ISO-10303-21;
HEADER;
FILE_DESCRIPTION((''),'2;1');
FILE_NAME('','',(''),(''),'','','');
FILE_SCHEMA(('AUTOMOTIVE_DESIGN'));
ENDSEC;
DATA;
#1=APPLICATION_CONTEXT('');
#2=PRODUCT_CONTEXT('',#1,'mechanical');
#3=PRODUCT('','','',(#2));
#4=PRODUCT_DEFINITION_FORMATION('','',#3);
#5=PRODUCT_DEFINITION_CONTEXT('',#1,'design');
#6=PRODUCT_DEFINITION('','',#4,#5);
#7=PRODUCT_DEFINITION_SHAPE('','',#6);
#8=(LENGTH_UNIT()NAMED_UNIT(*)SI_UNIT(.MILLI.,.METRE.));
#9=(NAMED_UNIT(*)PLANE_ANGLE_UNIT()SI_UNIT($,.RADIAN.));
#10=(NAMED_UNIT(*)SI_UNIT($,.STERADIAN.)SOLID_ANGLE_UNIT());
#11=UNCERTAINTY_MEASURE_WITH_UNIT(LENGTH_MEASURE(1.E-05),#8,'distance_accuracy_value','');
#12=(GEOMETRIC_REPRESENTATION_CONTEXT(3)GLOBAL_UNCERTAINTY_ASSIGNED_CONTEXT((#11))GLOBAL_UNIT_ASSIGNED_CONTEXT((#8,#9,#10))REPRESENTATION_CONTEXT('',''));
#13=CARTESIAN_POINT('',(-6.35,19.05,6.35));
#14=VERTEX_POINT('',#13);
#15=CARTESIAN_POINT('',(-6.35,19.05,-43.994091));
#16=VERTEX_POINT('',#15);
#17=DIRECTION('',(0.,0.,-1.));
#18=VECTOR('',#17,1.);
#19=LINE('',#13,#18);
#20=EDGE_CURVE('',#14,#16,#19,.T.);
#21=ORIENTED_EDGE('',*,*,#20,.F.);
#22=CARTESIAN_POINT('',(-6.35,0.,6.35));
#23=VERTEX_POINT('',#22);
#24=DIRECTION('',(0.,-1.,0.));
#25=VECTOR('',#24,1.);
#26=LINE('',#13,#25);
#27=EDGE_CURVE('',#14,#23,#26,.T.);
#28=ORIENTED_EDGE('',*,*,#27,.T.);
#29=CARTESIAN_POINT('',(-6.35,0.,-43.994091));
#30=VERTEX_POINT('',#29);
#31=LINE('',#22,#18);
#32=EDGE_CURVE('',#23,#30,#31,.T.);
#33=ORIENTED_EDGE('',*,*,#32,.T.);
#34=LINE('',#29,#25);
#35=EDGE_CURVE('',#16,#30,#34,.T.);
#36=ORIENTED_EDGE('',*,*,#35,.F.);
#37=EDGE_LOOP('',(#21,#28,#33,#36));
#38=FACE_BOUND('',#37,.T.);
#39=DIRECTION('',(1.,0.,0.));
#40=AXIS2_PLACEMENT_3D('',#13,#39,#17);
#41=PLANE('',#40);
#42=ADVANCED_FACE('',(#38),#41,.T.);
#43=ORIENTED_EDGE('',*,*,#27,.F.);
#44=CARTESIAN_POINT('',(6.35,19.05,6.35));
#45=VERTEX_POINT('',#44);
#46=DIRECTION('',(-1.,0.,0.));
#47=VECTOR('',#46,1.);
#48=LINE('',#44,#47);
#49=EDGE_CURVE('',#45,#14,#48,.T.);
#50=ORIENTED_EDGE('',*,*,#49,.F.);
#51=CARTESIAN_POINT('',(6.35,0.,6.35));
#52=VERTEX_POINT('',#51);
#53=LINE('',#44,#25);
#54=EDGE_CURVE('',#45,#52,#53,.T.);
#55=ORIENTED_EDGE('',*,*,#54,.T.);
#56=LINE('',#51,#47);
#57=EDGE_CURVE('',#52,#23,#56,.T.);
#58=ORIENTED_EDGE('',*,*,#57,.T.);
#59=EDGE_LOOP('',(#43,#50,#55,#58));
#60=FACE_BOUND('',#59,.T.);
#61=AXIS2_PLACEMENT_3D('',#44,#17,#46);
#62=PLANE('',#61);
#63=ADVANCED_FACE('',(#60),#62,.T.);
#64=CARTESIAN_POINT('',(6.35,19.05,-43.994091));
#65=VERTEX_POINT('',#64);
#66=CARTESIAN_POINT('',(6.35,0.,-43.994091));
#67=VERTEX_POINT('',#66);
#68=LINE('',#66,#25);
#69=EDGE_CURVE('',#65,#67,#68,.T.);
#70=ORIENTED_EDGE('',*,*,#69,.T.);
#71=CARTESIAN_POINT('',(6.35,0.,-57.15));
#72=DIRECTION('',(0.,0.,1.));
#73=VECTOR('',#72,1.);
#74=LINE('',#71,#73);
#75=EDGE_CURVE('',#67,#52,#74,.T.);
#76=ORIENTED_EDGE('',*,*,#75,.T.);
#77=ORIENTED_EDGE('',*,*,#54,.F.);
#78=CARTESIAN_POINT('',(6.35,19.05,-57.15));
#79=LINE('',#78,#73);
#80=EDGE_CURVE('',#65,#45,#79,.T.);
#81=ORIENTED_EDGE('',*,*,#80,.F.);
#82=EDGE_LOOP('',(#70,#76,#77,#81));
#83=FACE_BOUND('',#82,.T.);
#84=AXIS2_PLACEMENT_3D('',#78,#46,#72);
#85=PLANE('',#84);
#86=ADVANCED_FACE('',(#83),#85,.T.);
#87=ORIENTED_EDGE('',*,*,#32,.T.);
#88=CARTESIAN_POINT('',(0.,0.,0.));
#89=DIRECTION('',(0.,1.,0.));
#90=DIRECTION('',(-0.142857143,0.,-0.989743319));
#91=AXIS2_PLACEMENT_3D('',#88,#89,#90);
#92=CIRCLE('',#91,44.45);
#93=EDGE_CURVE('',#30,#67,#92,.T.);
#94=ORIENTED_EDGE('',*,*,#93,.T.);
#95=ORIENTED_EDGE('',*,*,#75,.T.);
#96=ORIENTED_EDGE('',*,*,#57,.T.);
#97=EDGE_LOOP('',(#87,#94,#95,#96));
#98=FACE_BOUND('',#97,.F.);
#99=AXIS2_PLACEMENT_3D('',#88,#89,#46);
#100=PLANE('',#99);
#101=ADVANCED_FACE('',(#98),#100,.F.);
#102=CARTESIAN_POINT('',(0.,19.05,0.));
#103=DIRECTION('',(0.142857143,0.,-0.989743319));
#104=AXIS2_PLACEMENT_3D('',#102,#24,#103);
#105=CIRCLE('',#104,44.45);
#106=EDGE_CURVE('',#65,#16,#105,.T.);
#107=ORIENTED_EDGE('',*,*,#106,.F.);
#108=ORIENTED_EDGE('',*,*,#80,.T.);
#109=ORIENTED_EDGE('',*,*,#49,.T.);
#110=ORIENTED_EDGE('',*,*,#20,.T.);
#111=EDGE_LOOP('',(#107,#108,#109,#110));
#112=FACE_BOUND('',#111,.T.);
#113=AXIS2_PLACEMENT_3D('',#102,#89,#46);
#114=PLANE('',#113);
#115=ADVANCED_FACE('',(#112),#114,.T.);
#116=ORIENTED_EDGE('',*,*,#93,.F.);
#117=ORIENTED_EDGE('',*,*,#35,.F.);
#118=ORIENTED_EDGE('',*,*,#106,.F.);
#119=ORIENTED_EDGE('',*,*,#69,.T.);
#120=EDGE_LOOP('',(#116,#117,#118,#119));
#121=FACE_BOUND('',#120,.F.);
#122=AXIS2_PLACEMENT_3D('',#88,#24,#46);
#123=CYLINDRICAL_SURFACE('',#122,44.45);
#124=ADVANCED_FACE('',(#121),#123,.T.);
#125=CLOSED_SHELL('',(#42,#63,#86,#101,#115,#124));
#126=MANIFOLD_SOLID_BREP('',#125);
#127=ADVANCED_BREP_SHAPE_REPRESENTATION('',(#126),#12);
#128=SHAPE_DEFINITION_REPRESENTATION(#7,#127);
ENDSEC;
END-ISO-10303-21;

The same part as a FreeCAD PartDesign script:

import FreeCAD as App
import Part
import Sketcher

V = App.Vector
Q = App.Units.Quantity


def add_polygon(sketch, points):
    """Adds a closed chain of lines whose ends are joined by coincident constraints."""
    first, n = sketch.GeometryCount, len(points)
    for a, b in zip(points, points[1:] + points[:1]):
        sketch.addGeometry(Part.LineSegment(App.Vector(*a, 0), App.Vector(*b, 0)), False)
    for i in range(n):
        sketch.addConstraint(Sketcher.Constraint("Coincident", first + i, 2, first + (i + 1) % n, 1))

doc = App.newDocument("Part")
params = doc.addObject("Spreadsheet::Sheet", "Params")
for row, (alias, value) in enumerate([
    ("sketch1_diameter", "3.5 in"),
    ("pad1_length", "0.75 in"),
    ("sketch2_width", "0.5 in"),
    ("sketch2_height", "2.5 in"),
    ("pocket1_length", "0.75 in"),
], start=1):
    params.set(f"A{row}", alias)
    params.set(f"B{row}", "=" + value)
    params.setAlias(f"B{row}", alias)

body = doc.addObject("PartDesign::Body", "Body")

sketch1 = body.newObject("Sketcher::SketchObject", "Sketch")
sketch1.AttachmentSupport = (doc.getObject("XZ_Plane"), [""])
sketch1.MapMode = "FlatFace"
sketch1.addGeometry(Part.Circle(V(0, 0, 0), V(0, 0, 1), 44), False)
sketch1.addConstraint([
    Sketcher.Constraint("Coincident", 0, 3, -1, 1),
    Sketcher.Constraint("Diameter", 0, Q("3.5 in")),
])
sketch1.setExpression("Constraints[1]", "Params.sketch1_diameter")
pad1 = body.newObject("PartDesign::Pad", "Pad")
pad1.Profile = sketch1
pad1.setExpression("Length", "Params.pad1_length")
pad1.Reversed = True

sketch2 = body.newObject("Sketcher::SketchObject", "Sketch001")
sketch2.AttachmentSupport = (doc.getObject("XZ_Plane"), [""])
sketch2.MapMode = "FlatFace"
sketch2.AttachmentOffset = App.Placement(V(0, 0, -0.75 * 25.4), App.Rotation())
add_polygon(sketch2, [(-6, 6), (6, 6), (6, -57), (-6, -57)])
sketch2.addConstraint([
    Sketcher.Constraint("Horizontal", 0),
    Sketcher.Constraint("Vertical", 1),
    Sketcher.Constraint("Horizontal", 2),
    Sketcher.Constraint("Vertical", 3),
    Sketcher.Constraint("DistanceX", 0, 1, 0, 2, Q("0.5 in")),
    Sketcher.Constraint("DistanceY", 1, 2, 1, 1, Q("2.5 in")),
    Sketcher.Constraint("DistanceX", -1, 1, 0, 2, Q("0.25 in")),
    Sketcher.Constraint("DistanceY", -1, 1, 0, 2, Q("0.25 in")),
])
sketch2.setExpression("Constraints[8]", "Params.sketch2_width")
sketch2.setExpression("Constraints[9]", "Params.sketch2_height")
pocket1 = body.newObject("PartDesign::Pocket", "Pocket")
pocket1.Profile = sketch2
pocket1.setExpression("Length", "Params.pocket1_length")
pocket1.Reversed = True

doc.recompute()
